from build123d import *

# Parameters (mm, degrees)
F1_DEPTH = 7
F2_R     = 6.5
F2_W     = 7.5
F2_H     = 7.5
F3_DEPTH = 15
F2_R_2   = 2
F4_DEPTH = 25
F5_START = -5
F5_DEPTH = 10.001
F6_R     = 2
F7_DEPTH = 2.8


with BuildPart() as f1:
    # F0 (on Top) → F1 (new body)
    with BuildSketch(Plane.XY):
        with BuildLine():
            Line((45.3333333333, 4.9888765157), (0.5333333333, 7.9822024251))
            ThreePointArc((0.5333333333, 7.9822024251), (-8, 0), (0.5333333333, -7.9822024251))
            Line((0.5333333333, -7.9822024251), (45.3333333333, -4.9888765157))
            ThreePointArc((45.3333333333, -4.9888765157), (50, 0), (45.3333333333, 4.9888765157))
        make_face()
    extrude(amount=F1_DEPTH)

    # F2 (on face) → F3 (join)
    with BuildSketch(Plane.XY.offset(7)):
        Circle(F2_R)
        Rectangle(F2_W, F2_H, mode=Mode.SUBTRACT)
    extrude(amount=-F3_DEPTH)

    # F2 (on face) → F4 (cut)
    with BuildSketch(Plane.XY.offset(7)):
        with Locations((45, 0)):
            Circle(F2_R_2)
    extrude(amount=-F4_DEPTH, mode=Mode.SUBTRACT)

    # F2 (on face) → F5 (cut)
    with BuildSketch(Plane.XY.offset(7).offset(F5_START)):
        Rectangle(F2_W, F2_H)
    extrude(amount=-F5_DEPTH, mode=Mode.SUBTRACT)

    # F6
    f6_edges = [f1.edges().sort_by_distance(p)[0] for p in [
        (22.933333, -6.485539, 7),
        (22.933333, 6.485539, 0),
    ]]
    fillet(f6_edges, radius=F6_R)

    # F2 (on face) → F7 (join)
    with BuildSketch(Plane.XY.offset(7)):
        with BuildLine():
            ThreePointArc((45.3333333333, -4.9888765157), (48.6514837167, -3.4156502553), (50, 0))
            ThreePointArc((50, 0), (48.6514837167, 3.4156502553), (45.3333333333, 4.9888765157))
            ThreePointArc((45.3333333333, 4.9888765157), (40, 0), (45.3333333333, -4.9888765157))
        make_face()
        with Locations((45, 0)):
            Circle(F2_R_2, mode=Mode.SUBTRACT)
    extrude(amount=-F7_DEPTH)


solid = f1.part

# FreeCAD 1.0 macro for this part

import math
import FreeCAD as App
import Part
import Sketcher
Q = App.Units.Quantity


def edges_at(feature, points):
    """Names of the edges that pass closest to the given points."""
    edges = feature.Shape.Edges
    near = lambda p: min(range(len(edges)), key=lambda i: edges[i].distToShape(Part.Vertex(*p))[0])
    return sorted({f"Edge{near(p) + 1}" for p in points})

doc = App.newDocument("Part")
body = doc.addObject("PartDesign::Body", "Body")

sketch1 = body.newObject("Sketcher::SketchObject", "Sketch")
sketch1.AttachmentSupport = (doc.getObject("XY_Plane"), [""])
sketch1.MapMode = "FlatFace"
sketch1.addGeometry(Part.LineSegment(App.Vector(45, 5, 0), App.Vector(1, 8, 0)), False)
sketch1.addGeometry(Part.ArcOfCircle(Part.Circle(App.Vector(0, 0, 0), App.Vector(0, 0, 1), 8), math.radians(86), math.radians(274)), False)
sketch1.addGeometry(Part.LineSegment(App.Vector(1, -8, 0), App.Vector(45, -5, 0)), False)
sketch1.addGeometry(Part.ArcOfCircle(Part.Circle(App.Vector(45, 0, 0), App.Vector(0, 0, 1), 5), math.radians(-86), math.radians(86)), False)
sketch1.addConstraint(Sketcher.Constraint("Tangent", 0, 2, 1, 1))
sketch1.addConstraint(Sketcher.Constraint("Tangent", 1, 2, 2, 1))
sketch1.addConstraint(Sketcher.Constraint("Tangent", 2, 2, 3, 1))
sketch1.addConstraint(Sketcher.Constraint("Tangent", 3, 2, 0, 1))
sketch1.addConstraint(Sketcher.Constraint("Coincident", 1, 3, -1, 1))
sketch1.addConstraint(Sketcher.Constraint("PointOnObject", 3, 3, -1))
sketch1.addConstraint(Sketcher.Constraint("Radius", 1, Q("8 mm")))
sketch1.addConstraint(Sketcher.Constraint("Radius", 3, Q("5 mm")))
sketch1.addConstraint(Sketcher.Constraint("DistanceX", -1, 1, 3, 3, Q("45 mm")))
pad1 = body.newObject("PartDesign::Pad", "Pad")
pad1.Profile = sketch1
pad1.Length = 7

sketch2 = body.newObject("Sketcher::SketchObject", "Sketch001")
sketch2.AttachmentSupport = (doc.getObject("XY_Plane"), [""])
sketch2.MapMode = "FlatFace"
sketch2.AttachmentOffset = App.Placement(App.Vector(0, 0, 7), App.Rotation())
sketch2.addGeometry(Part.Circle(App.Vector(0, 0, 0), App.Vector(0, 0, 1), 6), False)
sketch2.addGeometry(Part.LineSegment(App.Vector(4, -4, 0), App.Vector(-4, -4, 0)), False)
sketch2.addGeometry(Part.LineSegment(App.Vector(-4, -4, 0), App.Vector(-4, 4, 0)), False)
sketch2.addGeometry(Part.LineSegment(App.Vector(-4, 4, 0), App.Vector(4, 4, 0)), False)
sketch2.addGeometry(Part.LineSegment(App.Vector(4, 4, 0), App.Vector(4, -4, 0)), False)
sketch2.addConstraint(Sketcher.Constraint("Coincident", 1, 2, 2, 1))
sketch2.addConstraint(Sketcher.Constraint("Coincident", 2, 2, 3, 1))
sketch2.addConstraint(Sketcher.Constraint("Coincident", 3, 2, 4, 1))
sketch2.addConstraint(Sketcher.Constraint("Coincident", 4, 2, 1, 1))
sketch2.addConstraint(Sketcher.Constraint("Horizontal", 1))
sketch2.addConstraint(Sketcher.Constraint("Vertical", 2))
sketch2.addConstraint(Sketcher.Constraint("Horizontal", 3))
sketch2.addConstraint(Sketcher.Constraint("Vertical", 4))
sketch2.addConstraint(Sketcher.Constraint("Coincident", 0, 3, -1, 1))
sketch2.addConstraint(Sketcher.Constraint("Symmetric", 1, 2, 3, 2, -1, 1))
sketch2.addConstraint(Sketcher.Constraint("Equal", 3, 2))
sketch2.addConstraint(Sketcher.Constraint("Diameter", 0, Q("13 mm")))
sketch2.addConstraint(Sketcher.Constraint("DistanceX", 1, 2, 1, 1, Q("7.5 mm")))
pad2 = body.newObject("PartDesign::Pad", "Pad001")
pad2.Profile = sketch2
pad2.Length = 15
pad2.Reversed = True

sketch3 = body.newObject("Sketcher::SketchObject", "Sketch002")
sketch3.AttachmentSupport = (doc.getObject("XY_Plane"), [""])
sketch3.MapMode = "FlatFace"
sketch3.AttachmentOffset = App.Placement(App.Vector(0, 0, 7), App.Rotation())
sketch3.addGeometry(Part.Circle(App.Vector(45, 0, 0), App.Vector(0, 0, 1), 2), False)
sketch3.addConstraint(Sketcher.Constraint("PointOnObject", 0, 3, -1))
sketch3.addConstraint(Sketcher.Constraint("Diameter", 0, Q("4 mm")))
sketch3.addConstraint(Sketcher.Constraint("DistanceX", -1, 1, 0, 3, Q("45 mm")))
pocket1 = body.newObject("PartDesign::Pocket", "Pocket")
pocket1.Profile = sketch3
pocket1.Length = 25

sketch4 = body.newObject("Sketcher::SketchObject", "Sketch003")
sketch4.AttachmentSupport = (doc.getObject("XY_Plane"), [""])
sketch4.MapMode = "FlatFace"
sketch4.AttachmentOffset = App.Placement(App.Vector(0, 0, 2), App.Rotation())
sketch4.addGeometry(Part.LineSegment(App.Vector(-4, 4, 0), App.Vector(-4, -4, 0)), False)
sketch4.addGeometry(Part.LineSegment(App.Vector(-4, -4, 0), App.Vector(4, -4, 0)), False)
sketch4.addGeometry(Part.LineSegment(App.Vector(4, -4, 0), App.Vector(4, 4, 0)), False)
sketch4.addGeometry(Part.LineSegment(App.Vector(4, 4, 0), App.Vector(-4, 4, 0)), False)
sketch4.addConstraint(Sketcher.Constraint("Coincident", 0, 2, 1, 1))
sketch4.addConstraint(Sketcher.Constraint("Coincident", 1, 2, 2, 1))
sketch4.addConstraint(Sketcher.Constraint("Coincident", 2, 2, 3, 1))
sketch4.addConstraint(Sketcher.Constraint("Coincident", 3, 2, 0, 1))
sketch4.addConstraint(Sketcher.Constraint("Vertical", 0))
sketch4.addConstraint(Sketcher.Constraint("Horizontal", 1))
sketch4.addConstraint(Sketcher.Constraint("Vertical", 2))
sketch4.addConstraint(Sketcher.Constraint("Horizontal", 3))
sketch4.addConstraint(Sketcher.Constraint("Symmetric", 0, 2, 2, 2, -1, 1))
sketch4.addConstraint(Sketcher.Constraint("Equal", 3, 0))
sketch4.addConstraint(Sketcher.Constraint("DistanceX", 1, 1, 1, 2, Q("7.5 mm")))
pocket2 = body.newObject("PartDesign::Pocket", "Pocket001")
pocket2.Profile = sketch4
pocket2.Length = 10.001
doc.recompute()

fillet = body.newObject("PartDesign::Fillet", "Fillet")
fillet.Base = (pocket2, edges_at(pocket2, [(22.933, -6.486, 7), (22.933, 6.486, 0)]))
fillet.Radius = 2

sketch5 = body.newObject("Sketcher::SketchObject", "Sketch004")
sketch5.AttachmentSupport = (doc.getObject("XY_Plane"), [""])
sketch5.MapMode = "FlatFace"
sketch5.AttachmentOffset = App.Placement(App.Vector(0, 0, 7), App.Rotation())
sketch5.addGeometry(Part.ArcOfCircle(Part.Circle(App.Vector(45, 0, 0), App.Vector(0, 0, 1), 5), math.radians(-86), math.radians(0)), False)
sketch5.addGeometry(Part.ArcOfCircle(Part.Circle(App.Vector(45, 0, 0), App.Vector(0, 0, 1), 5), math.radians(0), math.radians(86)), False)
sketch5.addGeometry(Part.ArcOfCircle(Part.Circle(App.Vector(45, 0, 0), App.Vector(0, 0, 1), 5), math.radians(86), math.radians(274)), False)
sketch5.addGeometry(Part.Circle(App.Vector(45, 0, 0), App.Vector(0, 0, 1), 2), False)
sketch5.addConstraint(Sketcher.Constraint("Tangent", 0, 2, 1, 1))
sketch5.addConstraint(Sketcher.Constraint("Tangent", 1, 2, 2, 1))
sketch5.addConstraint(Sketcher.Constraint("Tangent", 2, 2, 0, 1))
sketch5.addConstraint(Sketcher.Constraint("Coincident", 3, 3, 0, 3))
sketch5.addConstraint(Sketcher.Constraint("Symmetric", 1, 2, 2, 2, -1))
sketch5.addConstraint(Sketcher.Constraint("PointOnObject", 0, 2, -1))
sketch5.addConstraint(Sketcher.Constraint("Diameter", 3, Q("4 mm")))
sketch5.addConstraint(Sketcher.Constraint("Radius", 0, Q("5 mm")))
sketch5.addConstraint(Sketcher.Constraint("DistanceX", -1, 1, 0, 3, Q("45 mm")))
sketch5.addConstraint(Sketcher.Constraint("DistanceX", -1, 1, 1, 2, Q("45.333333 mm")))
pad3 = body.newObject("PartDesign::Pad", "Pad002")
pad3.Profile = sketch5
pad3.Length = 2.8
pad3.Reversed = True

doc.recompute()
